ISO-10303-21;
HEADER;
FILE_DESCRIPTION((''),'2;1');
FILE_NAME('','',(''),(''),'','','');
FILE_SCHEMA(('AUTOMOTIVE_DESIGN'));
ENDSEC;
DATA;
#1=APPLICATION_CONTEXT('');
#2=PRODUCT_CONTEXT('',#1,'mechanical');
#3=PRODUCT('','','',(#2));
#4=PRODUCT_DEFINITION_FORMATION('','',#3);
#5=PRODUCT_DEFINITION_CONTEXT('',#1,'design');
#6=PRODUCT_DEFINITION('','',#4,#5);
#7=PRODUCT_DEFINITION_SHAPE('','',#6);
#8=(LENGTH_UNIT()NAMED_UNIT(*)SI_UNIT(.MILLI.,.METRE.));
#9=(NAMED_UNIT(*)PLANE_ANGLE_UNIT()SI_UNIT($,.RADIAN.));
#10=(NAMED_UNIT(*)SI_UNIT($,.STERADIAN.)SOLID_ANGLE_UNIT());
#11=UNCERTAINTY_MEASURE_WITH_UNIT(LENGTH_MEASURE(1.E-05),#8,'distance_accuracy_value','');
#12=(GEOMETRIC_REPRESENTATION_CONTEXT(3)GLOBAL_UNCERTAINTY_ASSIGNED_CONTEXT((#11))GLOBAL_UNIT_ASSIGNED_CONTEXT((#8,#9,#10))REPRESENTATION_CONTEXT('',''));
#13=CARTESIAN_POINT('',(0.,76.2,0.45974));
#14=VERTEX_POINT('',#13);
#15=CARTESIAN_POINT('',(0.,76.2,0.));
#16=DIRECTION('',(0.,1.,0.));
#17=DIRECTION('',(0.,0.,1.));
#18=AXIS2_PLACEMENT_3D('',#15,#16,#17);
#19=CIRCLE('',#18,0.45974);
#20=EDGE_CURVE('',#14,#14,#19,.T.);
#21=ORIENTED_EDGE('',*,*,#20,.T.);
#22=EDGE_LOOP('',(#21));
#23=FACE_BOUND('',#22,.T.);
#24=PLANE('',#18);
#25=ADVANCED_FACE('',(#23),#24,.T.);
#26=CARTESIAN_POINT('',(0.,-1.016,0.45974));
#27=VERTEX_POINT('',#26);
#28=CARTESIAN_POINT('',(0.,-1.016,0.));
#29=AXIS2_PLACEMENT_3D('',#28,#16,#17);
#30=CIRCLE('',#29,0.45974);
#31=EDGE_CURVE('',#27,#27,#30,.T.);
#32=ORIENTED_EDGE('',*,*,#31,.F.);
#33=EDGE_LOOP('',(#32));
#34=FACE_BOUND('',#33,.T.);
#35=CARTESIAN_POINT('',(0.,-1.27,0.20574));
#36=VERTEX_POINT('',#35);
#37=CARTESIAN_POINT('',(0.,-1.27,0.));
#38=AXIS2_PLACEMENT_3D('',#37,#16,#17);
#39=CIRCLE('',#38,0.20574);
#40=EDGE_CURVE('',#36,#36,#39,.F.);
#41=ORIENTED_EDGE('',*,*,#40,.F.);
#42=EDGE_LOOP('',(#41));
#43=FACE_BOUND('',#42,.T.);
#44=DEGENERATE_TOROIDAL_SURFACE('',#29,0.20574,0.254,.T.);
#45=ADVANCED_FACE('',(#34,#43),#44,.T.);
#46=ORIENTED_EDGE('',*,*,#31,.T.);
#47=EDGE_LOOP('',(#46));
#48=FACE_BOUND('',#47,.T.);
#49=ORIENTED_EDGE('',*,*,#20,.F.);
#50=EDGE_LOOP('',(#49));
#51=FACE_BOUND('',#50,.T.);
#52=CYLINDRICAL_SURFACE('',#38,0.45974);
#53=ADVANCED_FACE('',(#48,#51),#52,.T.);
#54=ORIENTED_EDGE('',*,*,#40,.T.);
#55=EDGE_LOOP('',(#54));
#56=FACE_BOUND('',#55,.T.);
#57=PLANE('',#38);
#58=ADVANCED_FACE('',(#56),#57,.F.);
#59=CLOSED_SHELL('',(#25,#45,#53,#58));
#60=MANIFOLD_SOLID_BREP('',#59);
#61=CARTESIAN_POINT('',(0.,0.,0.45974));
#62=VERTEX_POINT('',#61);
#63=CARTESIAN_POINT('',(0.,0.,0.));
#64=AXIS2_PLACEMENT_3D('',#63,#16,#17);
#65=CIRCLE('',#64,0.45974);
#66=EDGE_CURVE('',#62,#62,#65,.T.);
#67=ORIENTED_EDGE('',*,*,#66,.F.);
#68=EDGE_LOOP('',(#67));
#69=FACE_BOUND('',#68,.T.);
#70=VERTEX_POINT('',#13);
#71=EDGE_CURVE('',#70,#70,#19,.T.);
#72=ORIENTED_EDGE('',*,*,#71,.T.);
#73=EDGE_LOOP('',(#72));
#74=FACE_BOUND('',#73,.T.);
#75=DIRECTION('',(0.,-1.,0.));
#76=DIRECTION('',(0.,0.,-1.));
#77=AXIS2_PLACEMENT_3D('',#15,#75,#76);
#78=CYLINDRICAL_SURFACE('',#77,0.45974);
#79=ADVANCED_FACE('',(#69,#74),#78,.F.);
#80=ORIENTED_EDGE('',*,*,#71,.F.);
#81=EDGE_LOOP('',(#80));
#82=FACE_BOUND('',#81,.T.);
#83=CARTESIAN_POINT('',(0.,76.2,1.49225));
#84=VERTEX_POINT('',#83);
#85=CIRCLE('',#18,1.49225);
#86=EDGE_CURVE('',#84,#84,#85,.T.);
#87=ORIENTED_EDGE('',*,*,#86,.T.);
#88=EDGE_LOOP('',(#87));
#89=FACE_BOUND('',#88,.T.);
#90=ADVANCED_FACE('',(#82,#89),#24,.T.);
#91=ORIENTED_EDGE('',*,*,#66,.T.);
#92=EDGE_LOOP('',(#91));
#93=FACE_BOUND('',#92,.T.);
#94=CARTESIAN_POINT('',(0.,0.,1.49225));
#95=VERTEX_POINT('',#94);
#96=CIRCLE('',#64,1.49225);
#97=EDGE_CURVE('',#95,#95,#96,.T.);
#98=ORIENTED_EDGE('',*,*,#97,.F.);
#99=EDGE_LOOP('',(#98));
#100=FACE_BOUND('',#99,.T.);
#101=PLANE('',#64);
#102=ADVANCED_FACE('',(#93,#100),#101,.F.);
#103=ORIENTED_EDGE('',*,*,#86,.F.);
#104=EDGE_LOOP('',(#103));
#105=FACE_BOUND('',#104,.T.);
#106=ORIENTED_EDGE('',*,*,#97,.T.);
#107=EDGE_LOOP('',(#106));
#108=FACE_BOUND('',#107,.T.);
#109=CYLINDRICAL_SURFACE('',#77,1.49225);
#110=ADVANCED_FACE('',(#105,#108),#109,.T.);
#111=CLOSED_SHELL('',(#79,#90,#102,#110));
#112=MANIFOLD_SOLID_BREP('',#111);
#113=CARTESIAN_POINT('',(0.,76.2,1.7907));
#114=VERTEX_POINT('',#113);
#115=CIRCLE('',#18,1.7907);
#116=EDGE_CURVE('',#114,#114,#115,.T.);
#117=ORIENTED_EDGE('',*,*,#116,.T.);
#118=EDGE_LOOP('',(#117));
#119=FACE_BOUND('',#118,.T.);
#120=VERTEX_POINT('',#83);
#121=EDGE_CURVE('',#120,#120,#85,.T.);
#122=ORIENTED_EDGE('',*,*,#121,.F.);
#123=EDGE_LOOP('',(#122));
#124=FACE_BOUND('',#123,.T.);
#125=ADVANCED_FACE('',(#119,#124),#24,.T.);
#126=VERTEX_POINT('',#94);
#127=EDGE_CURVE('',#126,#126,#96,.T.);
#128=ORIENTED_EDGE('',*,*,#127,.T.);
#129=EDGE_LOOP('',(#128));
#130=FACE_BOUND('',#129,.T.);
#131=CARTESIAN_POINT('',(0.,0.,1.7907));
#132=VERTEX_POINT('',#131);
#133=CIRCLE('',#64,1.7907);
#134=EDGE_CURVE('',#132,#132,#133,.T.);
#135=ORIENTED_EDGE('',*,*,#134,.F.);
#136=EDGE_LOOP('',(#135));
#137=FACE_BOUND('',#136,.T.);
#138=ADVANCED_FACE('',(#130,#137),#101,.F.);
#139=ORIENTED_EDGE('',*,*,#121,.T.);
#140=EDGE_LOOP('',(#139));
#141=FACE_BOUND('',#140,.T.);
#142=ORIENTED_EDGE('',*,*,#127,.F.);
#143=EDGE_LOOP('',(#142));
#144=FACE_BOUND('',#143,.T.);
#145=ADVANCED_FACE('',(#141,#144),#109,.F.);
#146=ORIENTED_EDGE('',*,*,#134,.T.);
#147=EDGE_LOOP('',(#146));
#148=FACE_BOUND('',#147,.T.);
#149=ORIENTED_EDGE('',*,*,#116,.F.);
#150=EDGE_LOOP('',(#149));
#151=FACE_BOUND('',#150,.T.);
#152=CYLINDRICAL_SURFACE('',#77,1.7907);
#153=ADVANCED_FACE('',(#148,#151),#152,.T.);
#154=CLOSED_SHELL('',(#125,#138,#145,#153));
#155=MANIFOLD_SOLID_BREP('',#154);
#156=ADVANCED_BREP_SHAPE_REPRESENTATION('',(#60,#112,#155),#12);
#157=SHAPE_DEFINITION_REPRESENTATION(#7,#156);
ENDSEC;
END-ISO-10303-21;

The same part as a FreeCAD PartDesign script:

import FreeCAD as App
import Part
import Sketcher
Q = App.Units.Quantity


def edges_at(feature, points):
    """Names of the edges that pass closest to the given points."""
    edges = feature.Shape.Edges
    near = lambda p: min(range(len(edges)), key=lambda i: edges[i].distToShape(Part.Vertex(*p))[0])
    return sorted({f"Edge{near(p) + 1}" for p in points})

doc = App.newDocument("Part")
params = doc.addObject("Spreadsheet::Sheet", "Params")
for row, (alias, value) in enumerate([
    ("pad1_length", "3 in"),
    ("pad1_length2", "0.05 in"),
    ("fillet_radius", "0.01 in"),
    ("pad2_length", "3 in"),
    ("sketch3_diameter", "0.141 in"),
    ("pad3_length", "3 in"),
], start=1):
    params.set(f"A{row}", alias)
    params.set(f"B{row}", "=" + value)
    params.setAlias(f"B{row}", alias)

body = doc.addObject("PartDesign::Body", "Body")

# Sketch on XZ plane
sketch1 = body.newObject("Sketcher::SketchObject", "Sketch")
sketch1.AttachmentSupport = (doc.getObject("XZ_Plane"), [""])
sketch1.MapMode = "FlatFace"
sketch1.addGeometry(Part.Circle(App.Vector(0, 0, 0), App.Vector(0, 0, 1), 0.46), False)
sketch1.addConstraint([
    Sketcher.Constraint("Coincident", 0, 3, -1, 1),
    Sketcher.Constraint("Diameter", 0, Q("0.0362 in")),
])
pad1 = body.newObject("PartDesign::Pad", "Pad")
pad1.Profile = sketch1
pad1.Type = "TwoLengths"
pad1.setExpression("Length", "Params.pad1_length")
pad1.setExpression("Length2", "Params.pad1_length2")
pad1.Reversed = True
doc.recompute()

fillet = body.newObject("PartDesign::Fillet", "Fillet")
fillet.Base = (pad1, edges_at(pad1, [(-0.46, -1.27, 0)]))
fillet.setExpression("Radius", "Params.fillet_radius")
body2 = doc.addObject("PartDesign::Body", "Body001")

# Sketch on XZ plane
sketch2 = body2.newObject("Sketcher::SketchObject", "Sketch001")
sketch2.AttachmentSupport = (doc.getObject("XZ_Plane001"), [""])
sketch2.MapMode = "FlatFace"
sketch2.addGeometry([
    Part.Circle(App.Vector(0, 0, 0), App.Vector(0, 0, 1), 1.49),
    Part.Circle(App.Vector(0, 0, 0), App.Vector(0, 0, 1), 0.46),
], False)
sketch2.addConstraint([
    Sketcher.Constraint("Coincident", 0, 3, -1, 1),
    Sketcher.Constraint("Coincident", 1, 3, -1, 1),
    Sketcher.Constraint("Diameter", 0, Q("0.1175 in")),
    Sketcher.Constraint("Diameter", 1, Q("0.0362 in")),
])
pad2 = body2.newObject("PartDesign::Pad", "Pad001")
pad2.Profile = sketch2
pad2.setExpression("Length", "Params.pad2_length")
pad2.Reversed = True
body3 = doc.addObject("PartDesign::Body", "Body002")

# Sketch on XZ plane
sketch3 = body3.newObject("Sketcher::SketchObject", "Sketch002")
sketch3.AttachmentSupport = (doc.getObject("XZ_Plane002"), [""])
sketch3.MapMode = "FlatFace"
sketch3.addGeometry([
    Part.Circle(App.Vector(0, 0, 0), App.Vector(0, 0, 1), 1.8),
    Part.Circle(App.Vector(0, 0, 0), App.Vector(0, 0, 1), 1.5),
], False)
sketch3.addConstraint([
    Sketcher.Constraint("Coincident", 0, 3, -1, 1),
    Sketcher.Constraint("Coincident", 1, 3, -1, 1),
    Sketcher.Constraint("Diameter", 0, Q("0.141 in")),
    Sketcher.Constraint("Diameter", 1, Q("0.1175 in")),
])
sketch3.setExpression("Constraints[2]", "Params.sketch3_diameter")
pad3 = body3.newObject("PartDesign::Pad", "Pad002")
pad3.Profile = sketch3
pad3.setExpression("Length", "Params.pad3_length")
pad3.Reversed = True

doc.recompute()
